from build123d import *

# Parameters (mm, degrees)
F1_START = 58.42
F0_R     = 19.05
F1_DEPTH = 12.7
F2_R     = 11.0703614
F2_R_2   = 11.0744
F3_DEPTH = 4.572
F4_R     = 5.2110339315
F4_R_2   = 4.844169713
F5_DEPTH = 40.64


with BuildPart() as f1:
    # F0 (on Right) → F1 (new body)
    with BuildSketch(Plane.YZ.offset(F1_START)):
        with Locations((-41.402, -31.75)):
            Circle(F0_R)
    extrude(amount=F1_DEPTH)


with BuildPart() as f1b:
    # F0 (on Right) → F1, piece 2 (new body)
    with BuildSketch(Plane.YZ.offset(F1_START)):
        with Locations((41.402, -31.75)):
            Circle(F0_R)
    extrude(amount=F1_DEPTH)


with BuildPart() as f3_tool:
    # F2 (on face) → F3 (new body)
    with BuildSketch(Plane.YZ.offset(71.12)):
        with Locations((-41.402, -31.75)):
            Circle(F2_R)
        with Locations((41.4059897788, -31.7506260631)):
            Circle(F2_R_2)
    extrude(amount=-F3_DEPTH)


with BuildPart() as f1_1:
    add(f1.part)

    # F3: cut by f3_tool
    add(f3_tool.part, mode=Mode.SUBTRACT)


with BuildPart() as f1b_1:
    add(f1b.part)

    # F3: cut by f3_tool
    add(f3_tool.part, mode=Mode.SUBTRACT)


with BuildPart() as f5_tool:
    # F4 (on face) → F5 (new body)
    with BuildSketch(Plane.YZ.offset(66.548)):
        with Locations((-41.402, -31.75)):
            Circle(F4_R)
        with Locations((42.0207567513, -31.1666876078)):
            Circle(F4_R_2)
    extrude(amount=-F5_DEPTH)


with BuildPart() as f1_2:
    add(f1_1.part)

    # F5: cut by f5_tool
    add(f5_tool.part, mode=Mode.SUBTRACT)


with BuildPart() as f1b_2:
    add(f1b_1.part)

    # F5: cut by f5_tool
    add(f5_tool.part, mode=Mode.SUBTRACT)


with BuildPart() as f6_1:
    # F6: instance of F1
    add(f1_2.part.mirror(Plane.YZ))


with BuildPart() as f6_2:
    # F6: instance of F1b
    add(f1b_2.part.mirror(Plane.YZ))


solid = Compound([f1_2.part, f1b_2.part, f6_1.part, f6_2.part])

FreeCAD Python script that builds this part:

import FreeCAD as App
import Part
import Sketcher
Q = App.Units.Quantity

doc = App.newDocument("Part")
params = doc.addObject("Spreadsheet::Sheet", "Params")
for row, (alias, value) in enumerate([
    ("sketch1_diameter", "1.5 in"),
    ("pad1_length", "0.5 in"),
    ("sketch2_diameter", "1.5 in"),
    ("pad2_length", "0.5 in"),
    ("sketch3_diameter", "0.872 in"),
    ("pad3_length", "0.18 in"),
    ("pad4_length", "1.6 in"),
], start=1):
    params.set(f"A{row}", alias)
    params.set(f"B{row}", "=" + value)
    params.setAlias(f"B{row}", alias)

body = doc.addObject("PartDesign::Body", "Body")

# Sketch on YZ plane
sketch1 = body.newObject("Sketcher::SketchObject", "Sketch")
sketch1.AttachmentSupport = (doc.getObject("YZ_Plane"), [""])
sketch1.MapMode = "FlatFace"
sketch1.AttachmentOffset = App.Placement(App.Vector(0, 0, 2.3 * 25.4), App.Rotation())
sketch1.addGeometry(Part.Circle(App.Vector(-41, -32, 0), App.Vector(0, 0, 1), 19), False)
sketch1.addConstraint([
    Sketcher.Constraint("Diameter", 0, Q("1.5 in")),
    Sketcher.Constraint("DistanceX", 0, 3, -1, 1, Q("1.63 in")),
    Sketcher.Constraint("DistanceY", 0, 3, -1, 1, Q("1.25 in")),
])
sketch1.setExpression("Constraints[0]", "Params.sketch1_diameter")
pad1 = body.newObject("PartDesign::Pad", "Pad")
pad1.Profile = sketch1
pad1.setExpression("Length", "Params.pad1_length")
body2 = doc.addObject("PartDesign::Body", "Body001")

# Sketch on YZ plane
sketch2 = body2.newObject("Sketcher::SketchObject", "Sketch001")
sketch2.AttachmentSupport = (doc.getObject("YZ_Plane001"), [""])
sketch2.MapMode = "FlatFace"
sketch2.AttachmentOffset = App.Placement(App.Vector(0, 0, 2.3 * 25.4), App.Rotation())
sketch2.addGeometry(Part.Circle(App.Vector(41, -32, 0), App.Vector(0, 0, 1), 19), False)
sketch2.addConstraint([
    Sketcher.Constraint("Diameter", 0, Q("1.5 in")),
    Sketcher.Constraint("DistanceX", -1, 1, 0, 3, Q("1.63 in")),
    Sketcher.Constraint("DistanceY", 0, 3, -1, 1, Q("1.25 in")),
])
sketch2.setExpression("Constraints[0]", "Params.sketch2_diameter")
pad2 = body2.newObject("PartDesign::Pad", "Pad001")
pad2.Profile = sketch2
pad2.setExpression("Length", "Params.pad2_length")
body3 = doc.addObject("PartDesign::Body", "Body002")
body3.AllowCompound = True

# Sketch on YZ plane
sketch3 = body3.newObject("Sketcher::SketchObject", "Sketch002")
sketch3.AttachmentSupport = (doc.getObject("YZ_Plane002"), [""])
sketch3.MapMode = "FlatFace"
sketch3.AttachmentOffset = App.Placement(App.Vector(0, 0, 2.8 * 25.4), App.Rotation())
sketch3.addGeometry([
    Part.Circle(App.Vector(-41, -32, 0), App.Vector(0, 0, 1), 11),
    Part.Circle(App.Vector(41, -32, 0), App.Vector(0, 0, 1), 11),
], False)
sketch3.addConstraint([
    Sketcher.Constraint("Diameter", 1, Q("0.872 in")),
    Sketcher.Constraint("DistanceX", 0, 3, -1, 1, Q("1.63 in")),
    Sketcher.Constraint("DistanceY", 0, 3, -1, 1, Q("1.25 in")),
    Sketcher.Constraint("Diameter", 0, 22.140723),
    Sketcher.Constraint("DistanceX", -1, 1, 1, 3, 41.40599),
    Sketcher.Constraint("DistanceY", 1, 3, -1, 1, 31.750626),
])
sketch3.setExpression("Constraints[0]", "Params.sketch3_diameter")
pad3 = body3.newObject("PartDesign::Pad", "Pad002")
pad3.Profile = sketch3
pad3.setExpression("Length", "Params.pad3_length")
pad3.Reversed = True
doc.recompute()

body4 = doc.addObject("PartDesign::Body", "Body003")
body4.BaseFeature = body3
boolean = body.newObject("PartDesign::Boolean", "Boolean")
boolean.Type = "Cut"
boolean.addObjects([body4])
doc.recompute()

boolean2 = body2.newObject("PartDesign::Boolean", "Boolean001")
boolean2.Type = "Cut"
boolean2.addObjects([body3])
body5 = doc.addObject("PartDesign::Body", "Body004")
body5.AllowCompound = True

# Sketch on YZ plane
sketch4 = body5.newObject("Sketcher::SketchObject", "Sketch003")
sketch4.AttachmentSupport = (doc.getObject("YZ_Plane004"), [""])
sketch4.MapMode = "FlatFace"
sketch4.AttachmentOffset = App.Placement(App.Vector(0, 0, 2.62 * 25.4), App.Rotation())
sketch4.addGeometry([
    Part.Circle(App.Vector(-41.4, -31.8, 0), App.Vector(0, 0, 1), 5.2),
    Part.Circle(App.Vector(42, -31.2, 0), App.Vector(0, 0, 1), 4.8),
], False)
sketch4.addConstraint([
    Sketcher.Constraint("DistanceX", 0, 3, -1, 1, Q("1.63 in")),
    Sketcher.Constraint("DistanceY", 0, 3, -1, 1, Q("1.25 in")),
    Sketcher.Constraint("Diameter", 1, 9.688339),
    Sketcher.Constraint("Diameter", 0, 10.422068),
    Sketcher.Constraint("DistanceX", -1, 1, 1, 3, 42.020757),
    Sketcher.Constraint("DistanceY", 1, 3, -1, 1, 31.166688),
])
pad4 = body5.newObject("PartDesign::Pad", "Pad003")
pad4.Profile = sketch4
pad4.setExpression("Length", "Params.pad4_length")
pad4.Reversed = True
doc.recompute()

body6 = doc.addObject("PartDesign::Body", "Body005")
body6.BaseFeature = body5
boolean3 = body.newObject("PartDesign::Boolean", "Boolean002")
boolean3.Type = "Cut"
boolean3.addObjects([body6])
doc.recompute()

boolean4 = body2.newObject("PartDesign::Boolean", "Boolean003")
boolean4.Type = "Cut"
boolean4.addObjects([body5])
body7 = doc.addObject("PartDesign::Body", "Body006")
doc.recompute()

mirroring = doc.addObject("Part::Mirroring", "Mirroring")
mirroring.Source = body
mirroring.Base = App.Vector(0, 0, 0)
mirroring.Normal = App.Vector(1, 0, 0)
body7.BaseFeature = mirroring
doc.recompute()
body8 = doc.addObject("PartDesign::Body", "Body007")
doc.recompute()

mirroring2 = doc.addObject("Part::Mirroring", "Mirroring001")
mirroring2.Source = body2
mirroring2.Base = App.Vector(0, 0, 0)
mirroring2.Normal = App.Vector(1, 0, 0)
body8.BaseFeature = mirroring2
doc.recompute()
mirroring.Visibility = False
mirroring2.Visibility = False

doc.recompute()
